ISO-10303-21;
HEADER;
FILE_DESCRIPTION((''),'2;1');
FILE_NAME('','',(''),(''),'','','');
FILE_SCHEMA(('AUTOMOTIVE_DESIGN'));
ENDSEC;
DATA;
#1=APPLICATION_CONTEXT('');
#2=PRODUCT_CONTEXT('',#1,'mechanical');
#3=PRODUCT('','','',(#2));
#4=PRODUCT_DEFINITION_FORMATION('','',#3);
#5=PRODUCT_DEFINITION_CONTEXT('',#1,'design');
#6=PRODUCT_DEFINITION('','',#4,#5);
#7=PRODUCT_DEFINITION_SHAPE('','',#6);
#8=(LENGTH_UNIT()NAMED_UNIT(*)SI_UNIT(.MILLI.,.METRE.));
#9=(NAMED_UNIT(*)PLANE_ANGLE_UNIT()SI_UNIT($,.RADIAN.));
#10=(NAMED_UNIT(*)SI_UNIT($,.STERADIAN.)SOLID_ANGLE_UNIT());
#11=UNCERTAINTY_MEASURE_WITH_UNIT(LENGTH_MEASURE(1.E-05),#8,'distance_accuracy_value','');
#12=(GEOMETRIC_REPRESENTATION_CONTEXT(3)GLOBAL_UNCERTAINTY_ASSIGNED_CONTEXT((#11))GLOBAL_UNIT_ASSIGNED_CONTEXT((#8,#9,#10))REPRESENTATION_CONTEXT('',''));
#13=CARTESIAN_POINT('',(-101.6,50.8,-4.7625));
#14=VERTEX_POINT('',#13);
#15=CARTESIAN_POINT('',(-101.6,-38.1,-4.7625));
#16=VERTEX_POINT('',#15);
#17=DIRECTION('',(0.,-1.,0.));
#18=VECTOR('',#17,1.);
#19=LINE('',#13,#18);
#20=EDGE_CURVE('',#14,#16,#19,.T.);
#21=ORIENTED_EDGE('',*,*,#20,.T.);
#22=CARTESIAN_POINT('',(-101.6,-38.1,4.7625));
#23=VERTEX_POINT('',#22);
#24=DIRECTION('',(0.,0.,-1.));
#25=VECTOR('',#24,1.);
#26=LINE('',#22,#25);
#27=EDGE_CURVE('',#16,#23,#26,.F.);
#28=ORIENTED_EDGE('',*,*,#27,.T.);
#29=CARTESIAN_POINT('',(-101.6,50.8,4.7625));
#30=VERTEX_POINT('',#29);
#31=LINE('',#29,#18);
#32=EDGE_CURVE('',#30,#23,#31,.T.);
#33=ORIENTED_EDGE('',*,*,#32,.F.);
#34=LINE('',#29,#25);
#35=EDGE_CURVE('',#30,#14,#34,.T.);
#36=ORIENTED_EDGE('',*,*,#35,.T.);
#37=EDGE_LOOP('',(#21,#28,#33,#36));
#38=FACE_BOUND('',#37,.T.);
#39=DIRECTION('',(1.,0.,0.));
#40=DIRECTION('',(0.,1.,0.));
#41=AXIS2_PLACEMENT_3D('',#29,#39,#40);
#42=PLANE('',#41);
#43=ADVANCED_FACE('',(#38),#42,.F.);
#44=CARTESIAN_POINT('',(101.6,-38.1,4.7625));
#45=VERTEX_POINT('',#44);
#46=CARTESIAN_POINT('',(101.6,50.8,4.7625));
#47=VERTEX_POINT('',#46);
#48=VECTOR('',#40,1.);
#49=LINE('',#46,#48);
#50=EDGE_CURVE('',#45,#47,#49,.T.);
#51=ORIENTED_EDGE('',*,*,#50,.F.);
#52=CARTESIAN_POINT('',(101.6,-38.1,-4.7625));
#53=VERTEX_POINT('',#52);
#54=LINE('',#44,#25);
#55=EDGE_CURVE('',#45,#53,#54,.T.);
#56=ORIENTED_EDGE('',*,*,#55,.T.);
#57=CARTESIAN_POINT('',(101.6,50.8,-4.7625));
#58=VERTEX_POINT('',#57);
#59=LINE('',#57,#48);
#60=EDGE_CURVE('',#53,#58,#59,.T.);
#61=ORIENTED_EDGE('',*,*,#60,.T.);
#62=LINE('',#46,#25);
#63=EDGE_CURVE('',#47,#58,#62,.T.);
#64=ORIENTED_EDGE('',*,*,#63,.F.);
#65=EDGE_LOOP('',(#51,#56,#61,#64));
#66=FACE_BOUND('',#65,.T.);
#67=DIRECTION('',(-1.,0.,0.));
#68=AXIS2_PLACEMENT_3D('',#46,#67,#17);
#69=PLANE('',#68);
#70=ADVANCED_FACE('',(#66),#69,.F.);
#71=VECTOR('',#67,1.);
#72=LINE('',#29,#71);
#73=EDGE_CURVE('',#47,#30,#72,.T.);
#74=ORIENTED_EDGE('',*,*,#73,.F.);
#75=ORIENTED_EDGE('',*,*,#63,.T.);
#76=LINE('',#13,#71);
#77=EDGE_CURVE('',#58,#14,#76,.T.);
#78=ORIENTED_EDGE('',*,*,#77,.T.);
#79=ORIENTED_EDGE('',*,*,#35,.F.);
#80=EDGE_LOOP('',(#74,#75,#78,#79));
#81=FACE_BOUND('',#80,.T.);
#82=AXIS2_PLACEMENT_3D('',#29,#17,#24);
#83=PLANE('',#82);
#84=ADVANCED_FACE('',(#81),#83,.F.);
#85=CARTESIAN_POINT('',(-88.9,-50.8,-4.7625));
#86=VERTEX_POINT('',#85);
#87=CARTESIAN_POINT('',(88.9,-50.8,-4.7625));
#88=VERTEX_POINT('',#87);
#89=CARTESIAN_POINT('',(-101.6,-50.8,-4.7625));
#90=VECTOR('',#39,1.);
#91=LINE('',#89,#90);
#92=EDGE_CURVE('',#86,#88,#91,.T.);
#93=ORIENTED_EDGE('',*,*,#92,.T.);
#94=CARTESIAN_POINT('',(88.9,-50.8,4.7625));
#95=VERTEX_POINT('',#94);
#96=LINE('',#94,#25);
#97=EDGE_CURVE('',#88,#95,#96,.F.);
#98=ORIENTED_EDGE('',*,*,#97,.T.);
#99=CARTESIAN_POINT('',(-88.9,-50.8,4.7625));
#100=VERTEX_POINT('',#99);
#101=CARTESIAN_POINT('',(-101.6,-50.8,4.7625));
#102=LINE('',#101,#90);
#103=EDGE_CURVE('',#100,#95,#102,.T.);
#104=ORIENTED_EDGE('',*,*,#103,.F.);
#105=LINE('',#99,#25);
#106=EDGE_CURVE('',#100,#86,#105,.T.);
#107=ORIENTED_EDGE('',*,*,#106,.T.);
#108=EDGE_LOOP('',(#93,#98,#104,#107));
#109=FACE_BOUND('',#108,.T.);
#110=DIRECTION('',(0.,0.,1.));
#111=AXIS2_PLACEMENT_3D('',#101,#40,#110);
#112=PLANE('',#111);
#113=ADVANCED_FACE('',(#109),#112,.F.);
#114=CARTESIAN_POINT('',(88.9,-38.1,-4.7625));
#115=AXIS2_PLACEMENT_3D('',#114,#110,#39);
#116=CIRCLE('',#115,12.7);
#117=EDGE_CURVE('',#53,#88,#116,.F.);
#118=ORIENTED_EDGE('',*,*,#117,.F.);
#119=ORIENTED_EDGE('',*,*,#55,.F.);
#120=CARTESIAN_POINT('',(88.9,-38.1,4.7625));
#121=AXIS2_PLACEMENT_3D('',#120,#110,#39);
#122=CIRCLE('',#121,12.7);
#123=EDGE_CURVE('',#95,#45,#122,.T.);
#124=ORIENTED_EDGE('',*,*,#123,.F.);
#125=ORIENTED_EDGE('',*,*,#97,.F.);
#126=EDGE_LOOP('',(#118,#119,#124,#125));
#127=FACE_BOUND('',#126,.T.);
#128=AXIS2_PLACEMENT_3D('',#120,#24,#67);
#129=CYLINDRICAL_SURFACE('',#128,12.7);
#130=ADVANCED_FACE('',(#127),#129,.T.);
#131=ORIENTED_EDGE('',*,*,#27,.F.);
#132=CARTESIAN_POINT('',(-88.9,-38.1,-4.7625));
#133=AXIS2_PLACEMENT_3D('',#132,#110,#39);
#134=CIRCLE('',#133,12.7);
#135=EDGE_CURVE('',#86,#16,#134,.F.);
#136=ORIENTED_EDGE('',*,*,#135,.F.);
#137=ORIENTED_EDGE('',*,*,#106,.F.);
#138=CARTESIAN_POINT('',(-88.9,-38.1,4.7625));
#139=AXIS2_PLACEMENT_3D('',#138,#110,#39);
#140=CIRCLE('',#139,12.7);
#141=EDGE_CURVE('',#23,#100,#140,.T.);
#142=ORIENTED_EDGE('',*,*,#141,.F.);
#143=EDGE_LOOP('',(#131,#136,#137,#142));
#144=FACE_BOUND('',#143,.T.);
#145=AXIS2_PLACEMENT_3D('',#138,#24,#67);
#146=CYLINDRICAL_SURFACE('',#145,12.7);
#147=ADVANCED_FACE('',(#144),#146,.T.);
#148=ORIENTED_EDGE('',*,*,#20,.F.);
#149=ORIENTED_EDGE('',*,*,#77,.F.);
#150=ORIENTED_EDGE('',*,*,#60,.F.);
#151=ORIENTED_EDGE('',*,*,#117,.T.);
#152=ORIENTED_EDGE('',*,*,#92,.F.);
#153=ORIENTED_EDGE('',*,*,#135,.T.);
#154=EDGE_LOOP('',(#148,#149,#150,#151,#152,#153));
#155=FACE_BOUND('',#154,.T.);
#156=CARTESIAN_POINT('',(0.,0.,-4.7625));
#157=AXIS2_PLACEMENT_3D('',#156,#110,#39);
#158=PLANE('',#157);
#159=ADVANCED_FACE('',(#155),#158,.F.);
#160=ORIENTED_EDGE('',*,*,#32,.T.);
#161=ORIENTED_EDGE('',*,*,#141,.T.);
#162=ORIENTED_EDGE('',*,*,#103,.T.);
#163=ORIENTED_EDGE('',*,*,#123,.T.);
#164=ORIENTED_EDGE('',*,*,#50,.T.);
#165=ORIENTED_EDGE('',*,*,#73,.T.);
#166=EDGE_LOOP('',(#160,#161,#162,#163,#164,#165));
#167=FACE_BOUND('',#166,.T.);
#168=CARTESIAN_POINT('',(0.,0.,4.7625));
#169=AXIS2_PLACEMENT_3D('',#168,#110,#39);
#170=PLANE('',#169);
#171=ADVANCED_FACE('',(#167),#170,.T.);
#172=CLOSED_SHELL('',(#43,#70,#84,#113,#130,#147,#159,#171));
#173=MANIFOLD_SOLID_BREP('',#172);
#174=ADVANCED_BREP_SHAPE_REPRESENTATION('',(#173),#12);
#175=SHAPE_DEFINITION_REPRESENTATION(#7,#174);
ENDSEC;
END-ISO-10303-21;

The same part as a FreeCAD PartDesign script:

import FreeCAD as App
import Part
import Sketcher
from FreeCAD import Vector
Q = App.Units.Quantity


def edges_at(feature, points):
    """Names of the edges that pass closest to the given points."""
    edges = feature.Shape.Edges
    near = lambda p: min(range(len(edges)), key=lambda i: edges[i].distToShape(Part.Vertex(*p))[0])
    return sorted({f"Edge{near(p) + 1}" for p in points})


def add_polygon(sketch, points):
    """Adds a closed chain of lines whose ends are joined by coincident constraints."""
    first, n = sketch.GeometryCount, len(points)
    for a, b in zip(points, points[1:] + points[:1]):
        sketch.addGeometry(Part.LineSegment(App.Vector(*a, 0), App.Vector(*b, 0)), False)
    for i in range(n):
        sketch.addConstraint(Sketcher.Constraint("Coincident", first + i, 2, first + (i + 1) % n, 1))

doc = App.newDocument("Part")
body = doc.addObject("PartDesign::Body", "Body")

# Sketch on XY plane
sketch1 = body.newObject("Sketcher::SketchObject", "Sketch")
sketch1.AttachmentSupport = (doc.getObject("XY_Plane"), [""])
sketch1.MapMode = "FlatFace"
add_polygon(sketch1, [(-102, 51), (-102, -51), (102, -51), (102, 51)])  # lines 0-3
sketch1.addConstraint([
    Sketcher.Constraint("Vertical", 0),
    Sketcher.Constraint("Horizontal", 1),
    Sketcher.Constraint("Vertical", 2),
    Sketcher.Constraint("Horizontal", 3),
    Sketcher.Constraint("Symmetric", 0, 2, 2, 2, -1, 1),
    Sketcher.Constraint("DistanceX", 1, 1, 1, 2, Q("8 in")),
    Sketcher.Constraint("DistanceY", 0, 2, 0, 1, Q("4 in")),
])
pad1 = body.newObject("PartDesign::Pad", "Pad")
pad1.Profile = sketch1
pad1.Length = Q("0.375 in")
pad1.Midplane = True
doc.recompute()

fillet = body.newObject("PartDesign::Fillet", "Fillet")
fillet.Base = (pad1, edges_at(pad1, [(101.6, -50.8, 0), (-101.6, -50.8, 0)]))
fillet.Radius = Q("0.5 in")

doc.recompute()
